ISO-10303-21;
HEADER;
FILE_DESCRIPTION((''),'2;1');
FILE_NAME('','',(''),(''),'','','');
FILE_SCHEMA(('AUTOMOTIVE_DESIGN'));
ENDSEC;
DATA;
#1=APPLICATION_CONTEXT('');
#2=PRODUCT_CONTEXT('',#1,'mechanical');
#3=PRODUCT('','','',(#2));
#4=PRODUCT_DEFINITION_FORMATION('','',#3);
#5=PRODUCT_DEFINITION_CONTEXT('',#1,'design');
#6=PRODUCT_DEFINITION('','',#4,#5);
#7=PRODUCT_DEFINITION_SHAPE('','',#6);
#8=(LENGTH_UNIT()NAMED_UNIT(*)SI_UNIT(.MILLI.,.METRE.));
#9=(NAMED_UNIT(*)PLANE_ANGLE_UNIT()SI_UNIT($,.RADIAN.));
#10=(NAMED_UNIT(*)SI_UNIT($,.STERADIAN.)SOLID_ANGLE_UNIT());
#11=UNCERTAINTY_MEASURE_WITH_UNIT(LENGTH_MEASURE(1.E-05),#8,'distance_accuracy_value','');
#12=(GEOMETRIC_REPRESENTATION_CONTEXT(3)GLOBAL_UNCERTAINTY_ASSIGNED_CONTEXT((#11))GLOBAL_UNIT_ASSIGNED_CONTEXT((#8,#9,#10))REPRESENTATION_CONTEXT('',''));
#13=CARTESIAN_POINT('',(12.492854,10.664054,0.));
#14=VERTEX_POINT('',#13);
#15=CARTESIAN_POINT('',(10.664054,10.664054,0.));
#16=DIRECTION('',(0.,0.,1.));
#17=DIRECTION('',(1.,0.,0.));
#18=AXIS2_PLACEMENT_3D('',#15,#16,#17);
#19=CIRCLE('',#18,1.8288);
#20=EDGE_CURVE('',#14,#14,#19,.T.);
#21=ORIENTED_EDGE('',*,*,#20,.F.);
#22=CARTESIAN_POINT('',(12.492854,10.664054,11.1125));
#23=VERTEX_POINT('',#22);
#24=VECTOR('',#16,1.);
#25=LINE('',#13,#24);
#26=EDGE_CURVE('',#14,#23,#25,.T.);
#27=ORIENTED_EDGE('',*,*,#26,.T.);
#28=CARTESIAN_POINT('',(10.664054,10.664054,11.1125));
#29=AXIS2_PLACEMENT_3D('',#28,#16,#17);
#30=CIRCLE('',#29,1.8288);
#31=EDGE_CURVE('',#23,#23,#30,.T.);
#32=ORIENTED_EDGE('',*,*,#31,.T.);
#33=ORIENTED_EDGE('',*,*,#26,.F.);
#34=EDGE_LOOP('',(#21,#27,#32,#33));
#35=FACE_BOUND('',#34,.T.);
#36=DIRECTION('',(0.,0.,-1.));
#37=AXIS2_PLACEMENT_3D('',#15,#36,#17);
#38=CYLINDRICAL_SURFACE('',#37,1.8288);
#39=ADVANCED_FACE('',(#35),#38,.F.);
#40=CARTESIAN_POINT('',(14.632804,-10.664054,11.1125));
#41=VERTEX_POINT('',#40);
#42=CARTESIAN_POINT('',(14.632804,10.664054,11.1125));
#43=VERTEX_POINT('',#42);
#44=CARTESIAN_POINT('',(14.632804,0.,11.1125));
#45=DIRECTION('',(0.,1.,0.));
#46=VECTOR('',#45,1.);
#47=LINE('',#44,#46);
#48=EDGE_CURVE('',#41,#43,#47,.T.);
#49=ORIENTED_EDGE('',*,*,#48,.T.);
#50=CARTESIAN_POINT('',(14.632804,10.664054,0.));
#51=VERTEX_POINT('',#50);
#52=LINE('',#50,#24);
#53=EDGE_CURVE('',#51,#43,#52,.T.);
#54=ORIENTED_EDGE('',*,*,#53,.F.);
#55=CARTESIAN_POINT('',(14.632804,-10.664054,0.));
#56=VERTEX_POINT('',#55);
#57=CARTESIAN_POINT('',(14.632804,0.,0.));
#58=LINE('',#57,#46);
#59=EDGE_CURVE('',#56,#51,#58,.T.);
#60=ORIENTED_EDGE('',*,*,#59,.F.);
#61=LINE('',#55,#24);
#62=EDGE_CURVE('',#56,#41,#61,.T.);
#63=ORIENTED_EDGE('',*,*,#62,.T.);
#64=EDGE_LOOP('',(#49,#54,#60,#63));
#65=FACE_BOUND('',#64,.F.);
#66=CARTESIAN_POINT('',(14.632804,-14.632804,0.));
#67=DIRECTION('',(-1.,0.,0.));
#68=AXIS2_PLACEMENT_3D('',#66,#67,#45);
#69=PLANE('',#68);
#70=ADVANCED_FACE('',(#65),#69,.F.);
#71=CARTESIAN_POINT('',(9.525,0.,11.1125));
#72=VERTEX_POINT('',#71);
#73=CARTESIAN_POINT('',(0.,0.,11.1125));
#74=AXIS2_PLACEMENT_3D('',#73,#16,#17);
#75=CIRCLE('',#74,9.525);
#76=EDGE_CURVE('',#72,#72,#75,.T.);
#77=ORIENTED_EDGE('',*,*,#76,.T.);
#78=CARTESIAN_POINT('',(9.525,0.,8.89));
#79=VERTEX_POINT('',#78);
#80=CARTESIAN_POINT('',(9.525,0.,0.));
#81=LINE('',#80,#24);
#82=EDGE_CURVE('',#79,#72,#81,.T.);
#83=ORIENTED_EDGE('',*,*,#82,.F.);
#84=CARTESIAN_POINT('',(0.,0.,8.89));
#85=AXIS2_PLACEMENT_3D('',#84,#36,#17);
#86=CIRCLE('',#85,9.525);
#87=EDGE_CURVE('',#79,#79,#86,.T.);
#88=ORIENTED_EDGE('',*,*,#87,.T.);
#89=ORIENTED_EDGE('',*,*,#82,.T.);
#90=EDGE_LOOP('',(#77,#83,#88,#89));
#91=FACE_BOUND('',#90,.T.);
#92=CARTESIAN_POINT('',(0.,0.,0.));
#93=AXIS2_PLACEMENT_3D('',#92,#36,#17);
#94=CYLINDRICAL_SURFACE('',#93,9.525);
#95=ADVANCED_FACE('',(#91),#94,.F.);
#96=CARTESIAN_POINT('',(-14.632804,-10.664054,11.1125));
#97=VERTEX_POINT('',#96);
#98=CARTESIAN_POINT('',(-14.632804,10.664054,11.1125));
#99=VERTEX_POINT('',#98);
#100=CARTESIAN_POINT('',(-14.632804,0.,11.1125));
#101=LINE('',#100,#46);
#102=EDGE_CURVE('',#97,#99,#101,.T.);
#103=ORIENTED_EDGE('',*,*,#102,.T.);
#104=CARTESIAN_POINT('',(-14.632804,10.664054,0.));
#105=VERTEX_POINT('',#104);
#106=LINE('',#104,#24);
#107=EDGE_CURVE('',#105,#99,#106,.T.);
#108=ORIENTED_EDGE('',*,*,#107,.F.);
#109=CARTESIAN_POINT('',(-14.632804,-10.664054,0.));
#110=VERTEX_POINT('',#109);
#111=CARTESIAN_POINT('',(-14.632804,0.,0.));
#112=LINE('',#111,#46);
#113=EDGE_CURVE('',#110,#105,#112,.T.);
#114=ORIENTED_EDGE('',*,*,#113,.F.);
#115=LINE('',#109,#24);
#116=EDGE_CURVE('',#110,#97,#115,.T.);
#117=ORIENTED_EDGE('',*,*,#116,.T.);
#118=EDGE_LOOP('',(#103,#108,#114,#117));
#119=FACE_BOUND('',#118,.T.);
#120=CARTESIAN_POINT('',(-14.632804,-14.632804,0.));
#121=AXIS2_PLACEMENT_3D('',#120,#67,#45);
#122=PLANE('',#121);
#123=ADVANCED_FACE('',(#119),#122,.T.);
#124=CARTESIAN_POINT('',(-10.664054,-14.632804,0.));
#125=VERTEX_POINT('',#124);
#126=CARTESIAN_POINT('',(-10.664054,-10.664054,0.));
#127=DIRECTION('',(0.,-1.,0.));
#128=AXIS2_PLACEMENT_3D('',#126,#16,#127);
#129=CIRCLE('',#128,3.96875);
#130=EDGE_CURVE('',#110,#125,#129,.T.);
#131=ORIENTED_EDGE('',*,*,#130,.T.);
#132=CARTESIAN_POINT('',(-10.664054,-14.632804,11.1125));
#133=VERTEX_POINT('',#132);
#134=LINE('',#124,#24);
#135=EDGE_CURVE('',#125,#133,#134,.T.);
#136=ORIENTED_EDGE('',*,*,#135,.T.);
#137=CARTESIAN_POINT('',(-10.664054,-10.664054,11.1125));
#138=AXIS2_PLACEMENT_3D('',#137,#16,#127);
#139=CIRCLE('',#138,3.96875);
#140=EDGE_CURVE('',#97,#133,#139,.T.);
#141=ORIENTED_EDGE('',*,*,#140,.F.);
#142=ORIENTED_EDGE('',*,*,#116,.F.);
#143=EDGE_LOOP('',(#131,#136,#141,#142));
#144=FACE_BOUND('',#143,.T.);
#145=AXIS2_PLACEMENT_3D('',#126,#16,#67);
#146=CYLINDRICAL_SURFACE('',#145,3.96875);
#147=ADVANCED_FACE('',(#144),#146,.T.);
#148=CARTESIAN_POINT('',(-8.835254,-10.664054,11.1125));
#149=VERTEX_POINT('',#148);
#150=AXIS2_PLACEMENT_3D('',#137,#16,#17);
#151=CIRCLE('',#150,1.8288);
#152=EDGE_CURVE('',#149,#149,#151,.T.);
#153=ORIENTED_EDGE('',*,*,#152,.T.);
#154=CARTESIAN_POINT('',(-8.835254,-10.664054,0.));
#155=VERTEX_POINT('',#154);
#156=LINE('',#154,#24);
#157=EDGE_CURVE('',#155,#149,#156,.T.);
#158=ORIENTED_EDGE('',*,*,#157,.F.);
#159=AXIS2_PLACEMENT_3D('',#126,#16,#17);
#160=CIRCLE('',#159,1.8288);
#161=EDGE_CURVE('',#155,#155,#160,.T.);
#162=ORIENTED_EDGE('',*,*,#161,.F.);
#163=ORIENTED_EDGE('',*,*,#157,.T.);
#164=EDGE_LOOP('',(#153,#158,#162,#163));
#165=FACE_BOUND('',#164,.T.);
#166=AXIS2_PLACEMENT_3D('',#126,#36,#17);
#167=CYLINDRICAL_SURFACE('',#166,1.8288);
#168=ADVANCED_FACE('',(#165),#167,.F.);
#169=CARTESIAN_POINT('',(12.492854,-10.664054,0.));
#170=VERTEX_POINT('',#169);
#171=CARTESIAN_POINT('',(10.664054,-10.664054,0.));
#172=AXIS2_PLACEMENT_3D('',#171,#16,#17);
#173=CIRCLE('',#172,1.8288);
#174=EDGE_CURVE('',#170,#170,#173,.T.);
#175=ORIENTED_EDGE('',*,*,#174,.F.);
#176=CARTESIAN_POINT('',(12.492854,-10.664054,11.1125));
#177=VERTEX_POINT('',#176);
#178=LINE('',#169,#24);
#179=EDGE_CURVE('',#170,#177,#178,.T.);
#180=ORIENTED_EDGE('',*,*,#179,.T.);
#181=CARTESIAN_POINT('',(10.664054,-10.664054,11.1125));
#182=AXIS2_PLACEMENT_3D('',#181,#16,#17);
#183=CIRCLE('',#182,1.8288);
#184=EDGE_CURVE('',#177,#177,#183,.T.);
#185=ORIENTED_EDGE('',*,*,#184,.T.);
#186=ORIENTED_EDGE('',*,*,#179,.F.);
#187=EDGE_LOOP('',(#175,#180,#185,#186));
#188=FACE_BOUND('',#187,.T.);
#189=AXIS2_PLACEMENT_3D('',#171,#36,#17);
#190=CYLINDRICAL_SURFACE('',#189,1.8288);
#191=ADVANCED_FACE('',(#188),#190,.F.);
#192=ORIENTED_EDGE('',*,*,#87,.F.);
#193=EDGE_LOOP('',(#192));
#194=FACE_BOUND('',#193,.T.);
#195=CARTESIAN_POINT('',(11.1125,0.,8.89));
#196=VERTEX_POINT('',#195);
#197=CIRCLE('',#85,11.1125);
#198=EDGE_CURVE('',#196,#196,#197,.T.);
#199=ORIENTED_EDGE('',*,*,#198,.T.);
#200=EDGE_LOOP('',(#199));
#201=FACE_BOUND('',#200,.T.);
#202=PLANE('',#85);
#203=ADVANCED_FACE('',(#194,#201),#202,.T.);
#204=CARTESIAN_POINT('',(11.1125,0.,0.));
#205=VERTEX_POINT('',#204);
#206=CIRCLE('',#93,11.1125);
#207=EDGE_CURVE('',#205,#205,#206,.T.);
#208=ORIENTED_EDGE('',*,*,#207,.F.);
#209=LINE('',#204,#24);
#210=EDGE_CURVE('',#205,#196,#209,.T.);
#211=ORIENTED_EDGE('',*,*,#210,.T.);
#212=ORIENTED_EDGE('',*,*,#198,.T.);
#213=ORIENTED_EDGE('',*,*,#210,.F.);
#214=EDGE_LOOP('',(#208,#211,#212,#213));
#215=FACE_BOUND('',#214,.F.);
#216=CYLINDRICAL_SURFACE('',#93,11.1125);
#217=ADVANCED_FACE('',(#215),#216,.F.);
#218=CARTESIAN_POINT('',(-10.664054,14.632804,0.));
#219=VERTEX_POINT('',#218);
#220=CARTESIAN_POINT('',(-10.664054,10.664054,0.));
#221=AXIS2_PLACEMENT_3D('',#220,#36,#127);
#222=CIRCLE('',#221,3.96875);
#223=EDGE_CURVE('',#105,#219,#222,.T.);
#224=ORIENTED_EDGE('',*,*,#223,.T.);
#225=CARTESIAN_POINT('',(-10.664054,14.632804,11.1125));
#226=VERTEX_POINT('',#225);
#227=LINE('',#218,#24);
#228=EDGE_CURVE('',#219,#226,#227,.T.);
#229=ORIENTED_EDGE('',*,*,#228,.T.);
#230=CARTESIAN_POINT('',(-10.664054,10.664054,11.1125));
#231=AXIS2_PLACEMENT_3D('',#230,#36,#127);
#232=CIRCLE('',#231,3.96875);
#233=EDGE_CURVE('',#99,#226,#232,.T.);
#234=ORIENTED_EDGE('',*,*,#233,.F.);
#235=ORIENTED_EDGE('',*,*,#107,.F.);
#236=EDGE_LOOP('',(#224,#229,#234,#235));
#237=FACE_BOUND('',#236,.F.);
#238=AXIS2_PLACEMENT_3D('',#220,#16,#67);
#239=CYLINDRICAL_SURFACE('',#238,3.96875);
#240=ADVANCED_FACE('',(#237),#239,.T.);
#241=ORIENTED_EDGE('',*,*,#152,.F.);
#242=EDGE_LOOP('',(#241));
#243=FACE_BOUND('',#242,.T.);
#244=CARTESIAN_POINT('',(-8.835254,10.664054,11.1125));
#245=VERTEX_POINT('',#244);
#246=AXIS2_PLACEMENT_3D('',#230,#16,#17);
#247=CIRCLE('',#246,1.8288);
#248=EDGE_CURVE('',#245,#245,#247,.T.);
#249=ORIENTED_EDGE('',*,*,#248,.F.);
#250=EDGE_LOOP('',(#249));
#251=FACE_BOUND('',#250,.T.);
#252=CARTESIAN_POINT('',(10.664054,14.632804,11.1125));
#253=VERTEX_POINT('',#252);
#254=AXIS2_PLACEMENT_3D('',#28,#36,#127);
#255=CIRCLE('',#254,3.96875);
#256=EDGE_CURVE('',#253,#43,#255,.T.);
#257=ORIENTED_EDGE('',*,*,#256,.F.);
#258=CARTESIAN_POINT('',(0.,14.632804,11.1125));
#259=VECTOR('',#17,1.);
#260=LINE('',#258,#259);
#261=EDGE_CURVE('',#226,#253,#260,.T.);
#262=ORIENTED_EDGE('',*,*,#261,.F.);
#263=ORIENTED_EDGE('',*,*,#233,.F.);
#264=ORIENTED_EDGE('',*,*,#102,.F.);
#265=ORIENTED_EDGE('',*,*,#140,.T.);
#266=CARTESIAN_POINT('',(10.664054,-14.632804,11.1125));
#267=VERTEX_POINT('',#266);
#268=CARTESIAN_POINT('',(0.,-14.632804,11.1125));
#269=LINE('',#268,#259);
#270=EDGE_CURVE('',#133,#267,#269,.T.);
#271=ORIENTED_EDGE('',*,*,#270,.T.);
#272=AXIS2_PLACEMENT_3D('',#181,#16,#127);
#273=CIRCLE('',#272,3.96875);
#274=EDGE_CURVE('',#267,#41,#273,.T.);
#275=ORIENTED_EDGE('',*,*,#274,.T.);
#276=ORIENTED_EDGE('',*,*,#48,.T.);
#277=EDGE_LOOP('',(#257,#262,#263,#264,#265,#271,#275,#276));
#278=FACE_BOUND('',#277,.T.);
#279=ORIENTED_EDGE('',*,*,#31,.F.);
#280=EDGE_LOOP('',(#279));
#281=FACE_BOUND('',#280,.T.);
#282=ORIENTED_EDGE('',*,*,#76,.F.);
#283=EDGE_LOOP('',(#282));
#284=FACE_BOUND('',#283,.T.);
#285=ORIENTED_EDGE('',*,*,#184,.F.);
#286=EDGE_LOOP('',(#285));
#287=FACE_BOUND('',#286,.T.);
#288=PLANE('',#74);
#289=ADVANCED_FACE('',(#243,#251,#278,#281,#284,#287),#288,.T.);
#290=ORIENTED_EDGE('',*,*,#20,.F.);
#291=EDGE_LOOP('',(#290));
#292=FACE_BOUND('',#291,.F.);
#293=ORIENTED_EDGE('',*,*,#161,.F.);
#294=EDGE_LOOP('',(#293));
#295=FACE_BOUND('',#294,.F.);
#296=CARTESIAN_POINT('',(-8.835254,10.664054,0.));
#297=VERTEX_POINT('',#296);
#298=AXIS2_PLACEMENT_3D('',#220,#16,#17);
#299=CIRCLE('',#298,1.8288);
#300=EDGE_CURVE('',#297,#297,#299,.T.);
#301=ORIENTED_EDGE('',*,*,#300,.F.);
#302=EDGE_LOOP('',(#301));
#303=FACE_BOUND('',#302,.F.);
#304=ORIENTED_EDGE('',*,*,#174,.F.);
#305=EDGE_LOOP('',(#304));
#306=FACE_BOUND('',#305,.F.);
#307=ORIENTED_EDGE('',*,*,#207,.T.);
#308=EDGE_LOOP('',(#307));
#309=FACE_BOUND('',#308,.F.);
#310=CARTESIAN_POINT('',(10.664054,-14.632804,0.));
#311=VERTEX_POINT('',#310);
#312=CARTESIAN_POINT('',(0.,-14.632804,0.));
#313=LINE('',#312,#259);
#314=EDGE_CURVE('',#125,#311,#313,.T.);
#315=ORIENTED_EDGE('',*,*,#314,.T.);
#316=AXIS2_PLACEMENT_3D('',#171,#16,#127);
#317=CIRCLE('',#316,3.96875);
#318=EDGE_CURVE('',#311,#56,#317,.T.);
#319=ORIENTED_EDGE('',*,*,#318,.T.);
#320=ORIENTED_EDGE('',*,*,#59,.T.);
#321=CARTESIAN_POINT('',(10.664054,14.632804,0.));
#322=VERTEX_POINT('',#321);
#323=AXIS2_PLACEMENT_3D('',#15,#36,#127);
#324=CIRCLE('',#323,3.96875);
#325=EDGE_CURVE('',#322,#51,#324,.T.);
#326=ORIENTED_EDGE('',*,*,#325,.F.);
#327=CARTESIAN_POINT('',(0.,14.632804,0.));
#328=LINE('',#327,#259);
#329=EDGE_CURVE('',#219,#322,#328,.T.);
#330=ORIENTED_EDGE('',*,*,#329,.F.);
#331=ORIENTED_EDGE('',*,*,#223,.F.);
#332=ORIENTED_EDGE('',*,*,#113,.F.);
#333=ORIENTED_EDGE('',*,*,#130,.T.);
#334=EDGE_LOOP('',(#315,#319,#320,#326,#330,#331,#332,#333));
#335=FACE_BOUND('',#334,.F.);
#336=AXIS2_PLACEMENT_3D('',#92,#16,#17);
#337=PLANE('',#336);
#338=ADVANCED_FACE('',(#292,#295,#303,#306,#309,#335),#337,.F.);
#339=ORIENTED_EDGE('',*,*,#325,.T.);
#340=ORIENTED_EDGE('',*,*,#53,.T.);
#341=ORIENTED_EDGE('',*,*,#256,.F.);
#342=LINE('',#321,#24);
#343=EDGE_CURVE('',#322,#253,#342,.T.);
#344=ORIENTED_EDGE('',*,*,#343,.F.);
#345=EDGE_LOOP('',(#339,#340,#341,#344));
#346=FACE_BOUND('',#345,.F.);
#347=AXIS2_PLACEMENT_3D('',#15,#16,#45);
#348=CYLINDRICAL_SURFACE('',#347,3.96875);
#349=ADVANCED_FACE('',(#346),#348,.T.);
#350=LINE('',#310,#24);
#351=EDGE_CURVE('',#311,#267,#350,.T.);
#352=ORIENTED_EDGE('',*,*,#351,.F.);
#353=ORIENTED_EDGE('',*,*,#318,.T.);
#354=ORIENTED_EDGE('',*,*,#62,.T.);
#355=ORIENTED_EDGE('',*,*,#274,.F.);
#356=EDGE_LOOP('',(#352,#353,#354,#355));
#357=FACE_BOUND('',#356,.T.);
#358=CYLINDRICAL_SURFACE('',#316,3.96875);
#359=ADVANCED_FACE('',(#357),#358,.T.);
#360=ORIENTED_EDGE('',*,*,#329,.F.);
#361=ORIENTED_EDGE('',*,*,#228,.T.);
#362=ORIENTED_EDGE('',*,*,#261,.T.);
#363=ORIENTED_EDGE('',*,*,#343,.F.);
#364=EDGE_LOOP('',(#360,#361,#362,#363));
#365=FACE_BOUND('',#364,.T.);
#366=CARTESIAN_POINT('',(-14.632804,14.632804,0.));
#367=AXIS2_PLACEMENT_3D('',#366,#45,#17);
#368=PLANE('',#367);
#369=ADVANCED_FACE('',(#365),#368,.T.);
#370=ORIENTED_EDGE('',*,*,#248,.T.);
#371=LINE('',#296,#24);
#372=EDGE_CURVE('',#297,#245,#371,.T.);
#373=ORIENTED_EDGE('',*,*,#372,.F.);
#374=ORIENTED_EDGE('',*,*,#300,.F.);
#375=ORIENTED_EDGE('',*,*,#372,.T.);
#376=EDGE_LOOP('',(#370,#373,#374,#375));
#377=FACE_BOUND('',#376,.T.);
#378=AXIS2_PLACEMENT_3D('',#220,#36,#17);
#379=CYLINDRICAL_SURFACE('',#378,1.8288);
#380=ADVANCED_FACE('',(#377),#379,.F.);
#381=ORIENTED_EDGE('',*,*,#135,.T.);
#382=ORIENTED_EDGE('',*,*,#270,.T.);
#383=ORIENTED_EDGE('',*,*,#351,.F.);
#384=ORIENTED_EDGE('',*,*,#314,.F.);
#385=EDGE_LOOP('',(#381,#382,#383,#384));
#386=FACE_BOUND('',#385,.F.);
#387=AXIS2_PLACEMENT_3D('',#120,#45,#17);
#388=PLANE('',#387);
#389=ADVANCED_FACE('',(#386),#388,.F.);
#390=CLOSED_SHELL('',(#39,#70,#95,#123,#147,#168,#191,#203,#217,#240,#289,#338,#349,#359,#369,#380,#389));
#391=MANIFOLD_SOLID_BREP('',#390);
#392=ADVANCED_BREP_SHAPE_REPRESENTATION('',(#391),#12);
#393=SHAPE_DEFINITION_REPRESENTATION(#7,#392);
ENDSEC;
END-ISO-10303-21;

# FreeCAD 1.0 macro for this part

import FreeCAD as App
import Part
import Sketcher
from FreeCAD import Vector
Q = App.Units.Quantity


def edges_at(feature, points):
    """Names of the edges that pass closest to the given points."""
    edges = feature.Shape.Edges
    near = lambda p: min(range(len(edges)), key=lambda i: edges[i].distToShape(Part.Vertex(*p))[0])
    return sorted({f"Edge{near(p) + 1}" for p in points})


def add_polygon(sketch, points):
    """Adds a closed chain of lines whose ends are joined by coincident constraints."""
    first, n = sketch.GeometryCount, len(points)
    for a, b in zip(points, points[1:] + points[:1]):
        sketch.addGeometry(Part.LineSegment(App.Vector(*a, 0), App.Vector(*b, 0)), False)
    for i in range(n):
        sketch.addConstraint(Sketcher.Constraint("Coincident", first + i, 2, first + (i + 1) % n, 1))

doc = App.newDocument("Part")
body = doc.addObject("PartDesign::Body", "Body")

# Sketch on XY plane
sketch1 = body.newObject("Sketcher::SketchObject", "Sketch")
sketch1.AttachmentSupport = (doc.getObject("XY_Plane"), [""])
sketch1.MapMode = "FlatFace"
add_polygon(sketch1, [(-14.6, 14.6), (-14.6, -14.6), (14.6, -14.6), (14.6, 14.6)])  # lines 0-3
sketch1.addGeometry(Part.Circle(Vector(-10.7, -10.7, 0), Vector(0, 0, 1), 1.8), False)  # 4
sketch1.addGeometry(Part.Circle(Vector(0, 0, 0), Vector(0, 0, 1), 9.5), False)  # 5
sketch1.addGeometry(Part.Circle(Vector(10.7, -10.7, 0), Vector(0, 0, 1), 1.8), False)  # 6
sketch1.addGeometry(Part.Circle(Vector(-10.7, 10.7, 0), Vector(0, 0, 1), 1.8), False)  # 7
sketch1.addGeometry(Part.Circle(Vector(10.7, 10.7, 0), Vector(0, 0, 1), 1.8), False)  # 8
sketch1.addConstraint(Sketcher.Constraint("Vertical", 0))
sketch1.addConstraint(Sketcher.Constraint("Horizontal", 1))
sketch1.addConstraint(Sketcher.Constraint("Vertical", 2))
sketch1.addConstraint(Sketcher.Constraint("Horizontal", 3))
sketch1.addConstraint(Sketcher.Constraint("Coincident", 5, 3, -1, 1))
sketch1.addConstraint(Sketcher.Constraint("Equal", 4, 6))
sketch1.addConstraint(Sketcher.Constraint("Equal", 6, 7))
sketch1.addConstraint(Sketcher.Constraint("Equal", 7, 8))
sketch1.addConstraint(Sketcher.Constraint("Symmetric", 6, 3, 7, 3, -1, 1))
sketch1.addConstraint(Sketcher.Constraint("Symmetric", 4, 3, 8, 3, -1, 1))
sketch1.addConstraint(Sketcher.Constraint("Symmetric", 0, 2, 2, 2, -1, 1))
sketch1.addConstraint(Sketcher.Constraint("Symmetric", 4, 3, 6, 3, -2))
sketch1.addConstraint(Sketcher.Constraint("Equal", 3, 0))
sketch1.addConstraint(Sketcher.Constraint("Diameter", 5, Q("0.75 in")))
sketch1.addConstraint(Sketcher.Constraint("Diameter", 4, Q("0.144 in")))
sketch1.addConstraint(Sketcher.Constraint("DistanceX", 0, 2, 4, 3, Q("0.15625 in")))
sketch1.addConstraint(Sketcher.Constraint("DistanceY", 0, 2, 4, 3, Q("0.15625 in")))
sketch1.addConstraint(Sketcher.Constraint("DistanceX", 1, 1, 1, 2, Q("29.265608 mm")))
pad1 = body.newObject("PartDesign::Pad", "Pad")
pad1.Profile = sketch1
pad1.Length = Q("0.4375 in")
doc.recompute()

fillet = body.newObject("PartDesign::Fillet", "Fillet")
fillet.Base = (pad1, edges_at(pad1, [
    (-14.633, 14.633, 5.556),
    (-14.633, -14.633, 5.556),
    (14.633, -14.633, 5.556),
    (14.633, 14.633, 5.556),
]))
fillet.Radius = Q("0.15625 in")

# Sketch on XY plane
sketch2 = body.newObject("Sketcher::SketchObject", "Sketch001")
sketch2.AttachmentSupport = (doc.getObject("XY_Plane"), [""])
sketch2.MapMode = "FlatFace"
sketch2.addGeometry(Part.Circle(Vector(0, 0, 0), Vector(0, 0, 1), 11), False)
sketch2.addConstraint(Sketcher.Constraint("Coincident", 0, 3, -1, 1))
sketch2.addConstraint(Sketcher.Constraint("Diameter", 0, Q("0.875 in")))
pocket1 = body.newObject("PartDesign::Pocket", "Pocket")
pocket1.Profile = sketch2
pocket1.Length = Q("0.35 in")
pocket1.Reversed = True

doc.recompute()
